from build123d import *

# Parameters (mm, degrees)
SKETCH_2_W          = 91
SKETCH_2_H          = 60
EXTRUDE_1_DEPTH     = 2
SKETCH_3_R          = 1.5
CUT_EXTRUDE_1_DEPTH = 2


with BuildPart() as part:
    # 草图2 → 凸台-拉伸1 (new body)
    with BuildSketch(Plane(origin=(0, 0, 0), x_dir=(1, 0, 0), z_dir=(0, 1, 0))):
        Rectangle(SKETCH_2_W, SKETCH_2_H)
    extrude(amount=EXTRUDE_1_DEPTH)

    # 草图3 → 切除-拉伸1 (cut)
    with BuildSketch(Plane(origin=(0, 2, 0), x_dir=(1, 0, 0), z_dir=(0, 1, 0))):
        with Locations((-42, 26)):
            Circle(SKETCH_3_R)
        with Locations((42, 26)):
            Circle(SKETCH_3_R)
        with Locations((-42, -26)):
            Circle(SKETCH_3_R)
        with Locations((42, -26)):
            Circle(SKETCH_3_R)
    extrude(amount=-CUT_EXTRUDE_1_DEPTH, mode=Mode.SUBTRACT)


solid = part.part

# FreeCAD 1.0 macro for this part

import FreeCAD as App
import Part
import Sketcher


def add_polygon(sketch, points):
    """Adds a closed chain of lines whose ends are joined by coincident constraints."""
    first, n = sketch.GeometryCount, len(points)
    for a, b in zip(points, points[1:] + points[:1]):
        sketch.addGeometry(Part.LineSegment(App.Vector(*a, 0), App.Vector(*b, 0)), False)
    for i in range(n):
        sketch.addConstraint(Sketcher.Constraint("Coincident", first + i, 2, first + (i + 1) % n, 1))

doc = App.newDocument("Part")
body = doc.addObject("PartDesign::Body", "Body")

sketch1 = doc.addObject("Sketcher::SketchObject", "Sketch")
body.addObject(sketch1)
sketch1.AttachmentSupport = (doc.XZ_Plane, [""])
sketch1.MapMode = "FlatFace"
add_polygon(sketch1, [(-46, -30), (-46, 30), (46, 30), (46, -30)])
sketch1.addConstraint(Sketcher.Constraint("Vertical", 0))
sketch1.addConstraint(Sketcher.Constraint("Horizontal", 1))
sketch1.addConstraint(Sketcher.Constraint("Vertical", 2))
sketch1.addConstraint(Sketcher.Constraint("Horizontal", 3))
sketch1.addConstraint(Sketcher.Constraint("Symmetric", 0, 2, 2, 2, -1, 1))
sketch1.addConstraint(Sketcher.Constraint("DistanceX", 1, 1, 1, 2, 91.0))
sketch1.addConstraint(Sketcher.Constraint("DistanceY", 0, 1, 0, 2, 60.0))
pad1 = doc.addObject("PartDesign::Pad", "Pad")
body.addObject(pad1)
pad1.Profile = sketch1
pad1.Length = 2
pad1.Reversed = True

sketch2 = doc.addObject("Sketcher::SketchObject", "Sketch001")
body.addObject(sketch2)
sketch2.AttachmentSupport = (doc.XZ_Plane, [""])
sketch2.MapMode = "FlatFace"
sketch2.AttachmentOffset = App.Placement(App.Vector(0, 0, -2), App.Rotation())
sketch2.addGeometry(Part.Circle(App.Vector(-42, -26, 0), App.Vector(0, 0, 1), 1.5), False)
sketch2.addGeometry(Part.Circle(App.Vector(42, -26, 0), App.Vector(0, 0, 1), 1.5), False)
sketch2.addGeometry(Part.Circle(App.Vector(-42, 26, 0), App.Vector(0, 0, 1), 1.5), False)
sketch2.addGeometry(Part.Circle(App.Vector(42, 26, 0), App.Vector(0, 0, 1), 1.5), False)
sketch2.addConstraint(Sketcher.Constraint("Equal", 0, 1))
sketch2.addConstraint(Sketcher.Constraint("Equal", 1, 2))
sketch2.addConstraint(Sketcher.Constraint("Equal", 2, 3))
sketch2.addConstraint(Sketcher.Constraint("Symmetric", 1, 3, 2, 3, -1, 1))
sketch2.addConstraint(Sketcher.Constraint("Symmetric", 0, 3, 3, 3, -1, 1))
sketch2.addConstraint(Sketcher.Constraint("Symmetric", 0, 3, 1, 3, -2))
sketch2.addConstraint(Sketcher.Constraint("Diameter", 0, 3.0))
sketch2.addConstraint(Sketcher.Constraint("DistanceX", 0, 3, -1, 1, 42.0))
sketch2.addConstraint(Sketcher.Constraint("DistanceY", 0, 3, -1, 1, 26.0))
pocket1 = doc.addObject("PartDesign::Pocket", "Pocket")
body.addObject(pocket1)
pocket1.Profile = sketch2
pocket1.Length = 2
pocket1.Reversed = True

doc.recompute()
